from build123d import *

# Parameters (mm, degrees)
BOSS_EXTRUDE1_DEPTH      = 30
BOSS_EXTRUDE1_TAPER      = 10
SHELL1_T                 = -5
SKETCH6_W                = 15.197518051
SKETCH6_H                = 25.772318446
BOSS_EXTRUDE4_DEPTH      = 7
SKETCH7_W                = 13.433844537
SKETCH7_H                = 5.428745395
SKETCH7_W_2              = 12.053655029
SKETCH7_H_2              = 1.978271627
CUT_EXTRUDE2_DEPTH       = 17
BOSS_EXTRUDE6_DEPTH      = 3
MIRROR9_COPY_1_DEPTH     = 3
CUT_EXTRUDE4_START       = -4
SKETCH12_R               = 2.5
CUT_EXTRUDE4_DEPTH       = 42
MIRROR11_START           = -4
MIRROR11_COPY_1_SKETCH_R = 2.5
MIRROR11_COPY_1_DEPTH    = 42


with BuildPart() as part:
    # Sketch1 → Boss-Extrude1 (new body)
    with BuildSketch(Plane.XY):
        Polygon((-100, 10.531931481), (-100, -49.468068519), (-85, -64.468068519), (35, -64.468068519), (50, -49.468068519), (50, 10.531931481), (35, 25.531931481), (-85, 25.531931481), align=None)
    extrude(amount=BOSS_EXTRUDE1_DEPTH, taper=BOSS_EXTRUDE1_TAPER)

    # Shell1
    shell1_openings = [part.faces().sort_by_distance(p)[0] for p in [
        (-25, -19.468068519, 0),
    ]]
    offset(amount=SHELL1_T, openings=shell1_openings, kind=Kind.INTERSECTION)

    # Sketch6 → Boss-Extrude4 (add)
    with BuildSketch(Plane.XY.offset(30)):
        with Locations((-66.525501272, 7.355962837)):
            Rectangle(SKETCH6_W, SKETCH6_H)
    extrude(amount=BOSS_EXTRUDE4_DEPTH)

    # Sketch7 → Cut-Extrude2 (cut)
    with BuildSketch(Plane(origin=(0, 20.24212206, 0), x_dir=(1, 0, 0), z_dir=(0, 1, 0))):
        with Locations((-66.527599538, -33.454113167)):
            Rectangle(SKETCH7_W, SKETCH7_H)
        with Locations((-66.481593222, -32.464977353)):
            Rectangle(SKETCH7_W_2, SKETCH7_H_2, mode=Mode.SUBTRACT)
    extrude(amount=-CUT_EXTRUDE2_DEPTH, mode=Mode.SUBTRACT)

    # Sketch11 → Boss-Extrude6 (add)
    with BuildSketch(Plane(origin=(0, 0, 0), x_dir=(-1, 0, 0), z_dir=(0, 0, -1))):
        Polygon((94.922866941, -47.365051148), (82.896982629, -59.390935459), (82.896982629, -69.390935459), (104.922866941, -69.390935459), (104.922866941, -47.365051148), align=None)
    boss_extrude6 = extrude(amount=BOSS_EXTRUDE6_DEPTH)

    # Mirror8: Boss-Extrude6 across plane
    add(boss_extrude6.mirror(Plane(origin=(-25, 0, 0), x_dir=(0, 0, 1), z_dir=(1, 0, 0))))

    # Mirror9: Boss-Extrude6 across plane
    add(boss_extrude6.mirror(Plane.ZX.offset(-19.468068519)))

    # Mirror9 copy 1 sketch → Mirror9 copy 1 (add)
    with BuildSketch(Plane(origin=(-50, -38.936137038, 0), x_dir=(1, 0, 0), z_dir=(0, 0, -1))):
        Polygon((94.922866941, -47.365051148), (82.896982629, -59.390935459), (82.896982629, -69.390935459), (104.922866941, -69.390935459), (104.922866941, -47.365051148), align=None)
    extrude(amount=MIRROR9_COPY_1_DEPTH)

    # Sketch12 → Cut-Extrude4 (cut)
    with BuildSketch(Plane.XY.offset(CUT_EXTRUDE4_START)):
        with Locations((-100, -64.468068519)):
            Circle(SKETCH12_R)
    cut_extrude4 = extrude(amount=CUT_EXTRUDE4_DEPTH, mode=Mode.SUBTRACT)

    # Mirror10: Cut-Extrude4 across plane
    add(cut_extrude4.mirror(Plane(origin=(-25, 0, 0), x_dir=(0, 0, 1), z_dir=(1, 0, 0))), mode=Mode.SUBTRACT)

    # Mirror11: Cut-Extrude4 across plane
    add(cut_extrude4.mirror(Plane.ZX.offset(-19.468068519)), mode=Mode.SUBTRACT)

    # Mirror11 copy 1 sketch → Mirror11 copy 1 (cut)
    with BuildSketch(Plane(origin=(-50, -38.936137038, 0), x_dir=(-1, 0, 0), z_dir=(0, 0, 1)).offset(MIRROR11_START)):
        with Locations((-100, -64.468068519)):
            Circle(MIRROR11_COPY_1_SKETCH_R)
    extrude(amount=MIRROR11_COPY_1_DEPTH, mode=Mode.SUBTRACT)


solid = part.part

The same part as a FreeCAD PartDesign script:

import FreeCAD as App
import Part
import Sketcher
Q = App.Units.Quantity


def faces_at(feature, points):
    """Names of the faces that lie closest to the given points."""
    faces = feature.Shape.Faces
    near = lambda p: min(range(len(faces)), key=lambda i: faces[i].distToShape(Part.Vertex(*p))[0])
    return sorted({f"Face{near(p) + 1}" for p in points})

doc = App.newDocument("Part")
body = doc.addObject("PartDesign::Body", "Body")

# Sketch on XY plane
sketch1 = body.newObject("Sketcher::SketchObject", "Sketch")
sketch1.AttachmentSupport = (doc.getObject("XY_Plane"), [""])
sketch1.MapMode = "FlatFace"
sketch1.addGeometry(Part.LineSegment(App.Vector(-100, 10.531931, 0), App.Vector(-100, -49.468069, 0)), False)
sketch1.addGeometry(Part.LineSegment(App.Vector(-100, -49.468069, 0), App.Vector(-85, -64.468069, 0)), False)
sketch1.addGeometry(Part.LineSegment(App.Vector(-85, -64.468069, 0), App.Vector(35, -64.468069, 0)), False)
sketch1.addGeometry(Part.LineSegment(App.Vector(35, -64.468069, 0), App.Vector(50, -49.468069, 0)), False)
sketch1.addGeometry(Part.LineSegment(App.Vector(50, -49.468069, 0), App.Vector(50, 10.531931, 0)), False)
sketch1.addGeometry(Part.LineSegment(App.Vector(50, 10.531931, 0), App.Vector(35, 25.531931, 0)), False)
sketch1.addGeometry(Part.LineSegment(App.Vector(35, 25.531931, 0), App.Vector(-85, 25.531931, 0)), False)
sketch1.addGeometry(Part.LineSegment(App.Vector(-85, 25.531931, 0), App.Vector(-100, 10.531931, 0)), False)
sketch1.addConstraint(Sketcher.Constraint("Coincident", 0, 2, 1, 1))
sketch1.addConstraint(Sketcher.Constraint("Coincident", 1, 2, 2, 1))
sketch1.addConstraint(Sketcher.Constraint("Coincident", 2, 2, 3, 1))
sketch1.addConstraint(Sketcher.Constraint("Coincident", 3, 2, 4, 1))
sketch1.addConstraint(Sketcher.Constraint("Coincident", 4, 2, 5, 1))
sketch1.addConstraint(Sketcher.Constraint("Coincident", 5, 2, 6, 1))
sketch1.addConstraint(Sketcher.Constraint("Coincident", 6, 2, 7, 1))
sketch1.addConstraint(Sketcher.Constraint("Coincident", 7, 2, 0, 1))
sketch1.addConstraint(Sketcher.Constraint("Vertical", 0))
sketch1.addConstraint(Sketcher.Constraint("Horizontal", 2))
sketch1.addConstraint(Sketcher.Constraint("Vertical", 4))
sketch1.addConstraint(Sketcher.Constraint("Horizontal", 6))
sketch1.addConstraint(Sketcher.Constraint("Perpendicular", 1, 3))
sketch1.addConstraint(Sketcher.Constraint("Perpendicular", 3, 5))
sketch1.addConstraint(Sketcher.Constraint("Perpendicular", 5, 7))
sketch1.addConstraint(Sketcher.Constraint("Horizontal", 0, 2, 3, 2))
sketch1.addConstraint(Sketcher.Constraint("Horizontal", 4, 2, 7, 2))
sketch1.addConstraint(Sketcher.Constraint("Vertical", 2, 2, 5, 2))
sketch1.addConstraint(Sketcher.Constraint("Vertical", 1, 2, 6, 2))
sketch1.addConstraint(Sketcher.Constraint("DistanceX", 2, 1, 2, 2, Q("120 mm")))
sketch1.addConstraint(Sketcher.Constraint("DistanceY", 0, 2, 0, 1, Q("60 mm")))
sketch1.addConstraint(Sketcher.Constraint("DistanceX", 0, 2, -1, 1, Q("100 mm")))
sketch1.addConstraint(Sketcher.Constraint("DistanceX", 1, 2, -1, 1, Q("85 mm")))
sketch1.addConstraint(Sketcher.Constraint("DistanceY", 0, 2, -1, 1, Q("49.468069 mm")))
pad1 = body.newObject("PartDesign::Pad", "Pad")
pad1.Profile = sketch1
pad1.Length = 30
pad1.TaperAngle = -10
doc.recompute()

thickness = body.newObject("PartDesign::Thickness", "Thickness")
thickness.Base = (pad1, faces_at(pad1, [(-25, -19.468, 0)]))
thickness.Value = 5
thickness.Reversed = True
thickness.Join = "Intersection"

# Sketch on XY plane
sketch2 = body.newObject("Sketcher::SketchObject", "Sketch001")
sketch2.AttachmentSupport = (doc.getObject("XY_Plane"), [""])
sketch2.MapMode = "FlatFace"
sketch2.AttachmentOffset = App.Placement(App.Vector(0, 0, 30), App.Rotation())
sketch2.addGeometry(Part.LineSegment(App.Vector(-74.12426, 20.242122, 0), App.Vector(-74.12426, -5.530196, 0)), False)
sketch2.addGeometry(Part.LineSegment(App.Vector(-74.12426, -5.530196, 0), App.Vector(-58.926742, -5.530196, 0)), False)
sketch2.addGeometry(Part.LineSegment(App.Vector(-58.926742, -5.530196, 0), App.Vector(-58.926742, 20.242122, 0)), False)
sketch2.addGeometry(Part.LineSegment(App.Vector(-58.926742, 20.242122, 0), App.Vector(-74.12426, 20.242122, 0)), False)
sketch2.addConstraint(Sketcher.Constraint("Coincident", 0, 2, 1, 1))
sketch2.addConstraint(Sketcher.Constraint("Coincident", 1, 2, 2, 1))
sketch2.addConstraint(Sketcher.Constraint("Coincident", 2, 2, 3, 1))
sketch2.addConstraint(Sketcher.Constraint("Coincident", 3, 2, 0, 1))
sketch2.addConstraint(Sketcher.Constraint("Vertical", 0))
sketch2.addConstraint(Sketcher.Constraint("Horizontal", 1))
sketch2.addConstraint(Sketcher.Constraint("Vertical", 2))
sketch2.addConstraint(Sketcher.Constraint("Horizontal", 3))
sketch2.addConstraint(Sketcher.Constraint("DistanceX", 1, 1, 1, 2, Q("15.197518 mm")))
sketch2.addConstraint(Sketcher.Constraint("DistanceY", 0, 2, 0, 1, Q("25.772318 mm")))
sketch2.addConstraint(Sketcher.Constraint("DistanceX", 0, 2, -1, 1, Q("74.12426 mm")))
sketch2.addConstraint(Sketcher.Constraint("DistanceY", 0, 2, -1, 1, Q("5.530196 mm")))
pad2 = body.newObject("PartDesign::Pad", "Pad001")
pad2.Profile = sketch2
pad2.Length = 7

# Sketch on XZ plane
sketch3 = body.newObject("Sketcher::SketchObject", "Sketch002")
sketch3.AttachmentSupport = (doc.getObject("XZ_Plane"), [""])
sketch3.MapMode = "FlatFace"
sketch3.AttachmentOffset = App.Placement(App.Vector(0, 0, -20.242122), App.Rotation())
sketch3.addGeometry(Part.LineSegment(App.Vector(-73.244522, 30.73974, 0), App.Vector(-73.244522, 36.168486, 0)), False)
sketch3.addGeometry(Part.LineSegment(App.Vector(-73.244522, 36.168486, 0), App.Vector(-59.810677, 36.168486, 0)), False)
sketch3.addGeometry(Part.LineSegment(App.Vector(-59.810677, 36.168486, 0), App.Vector(-59.810677, 30.73974, 0)), False)
sketch3.addGeometry(Part.LineSegment(App.Vector(-59.810677, 30.73974, 0), App.Vector(-73.244522, 30.73974, 0)), False)
sketch3.addGeometry(Part.LineSegment(App.Vector(-60.454766, 33.454113, 0), App.Vector(-72.508421, 33.454113, 0)), False)
sketch3.addGeometry(Part.LineSegment(App.Vector(-72.508421, 33.454113, 0), App.Vector(-72.508421, 31.475842, 0)), False)
sketch3.addGeometry(Part.LineSegment(App.Vector(-72.508421, 31.475842, 0), App.Vector(-60.454766, 31.475842, 0)), False)
sketch3.addGeometry(Part.LineSegment(App.Vector(-60.454766, 31.475842, 0), App.Vector(-60.454766, 33.454113, 0)), False)
sketch3.addConstraint(Sketcher.Constraint("Coincident", 0, 2, 1, 1))
sketch3.addConstraint(Sketcher.Constraint("Coincident", 1, 2, 2, 1))
sketch3.addConstraint(Sketcher.Constraint("Coincident", 2, 2, 3, 1))
sketch3.addConstraint(Sketcher.Constraint("Coincident", 3, 2, 0, 1))
sketch3.addConstraint(Sketcher.Constraint("Coincident", 4, 2, 5, 1))
sketch3.addConstraint(Sketcher.Constraint("Coincident", 5, 2, 6, 1))
sketch3.addConstraint(Sketcher.Constraint("Coincident", 6, 2, 7, 1))
sketch3.addConstraint(Sketcher.Constraint("Coincident", 7, 2, 4, 1))
sketch3.addConstraint(Sketcher.Constraint("Vertical", 0))
sketch3.addConstraint(Sketcher.Constraint("Horizontal", 1))
sketch3.addConstraint(Sketcher.Constraint("Vertical", 2))
sketch3.addConstraint(Sketcher.Constraint("Horizontal", 3))
sketch3.addConstraint(Sketcher.Constraint("Horizontal", 4))
sketch3.addConstraint(Sketcher.Constraint("Vertical", 5))
sketch3.addConstraint(Sketcher.Constraint("Horizontal", 6))
sketch3.addConstraint(Sketcher.Constraint("Vertical", 7))
sketch3.addConstraint(Sketcher.Constraint("DistanceY", 5, 2, 5, 1, Q("1.978272 mm")))
sketch3.addConstraint(Sketcher.Constraint("DistanceX", 0, 2, 4, 2, Q("0.736101 mm")))
sketch3.addConstraint(Sketcher.Constraint("DistanceY", 3, 2, 5, 2, Q("0.736101 mm")))
sketch3.addConstraint(Sketcher.Constraint("DistanceX", 1, 1, 1, 2, Q("13.433845 mm")))
sketch3.addConstraint(Sketcher.Constraint("DistanceX", 4, 2, 4, 1, Q("12.053655 mm")))
sketch3.addConstraint(Sketcher.Constraint("DistanceY", 0, 1, 0, 2, Q("5.428745 mm")))
sketch3.addConstraint(Sketcher.Constraint("DistanceX", 0, 2, -1, 1, Q("73.244522 mm")))
sketch3.addConstraint(Sketcher.Constraint("DistanceY", -1, 1, 2, 2, Q("30.73974 mm")))
pocket1 = body.newObject("PartDesign::Pocket", "Pocket")
pocket1.Profile = sketch3
pocket1.Length = 17
pocket1.Reversed = True

# Sketch on XY plane
sketch4 = body.newObject("Sketcher::SketchObject", "Sketch003")
sketch4.AttachmentSupport = (doc.getObject("XY_Plane"), [""])
sketch4.MapMode = "FlatFace"
sketch4.addGeometry(Part.LineSegment(App.Vector(-94.922867, -47.365051, 0), App.Vector(-82.896983, -59.390935, 0)), False)
sketch4.addGeometry(Part.LineSegment(App.Vector(-82.896983, -59.390935, 0), App.Vector(-82.896983, -69.390935, 0)), False)
sketch4.addGeometry(Part.LineSegment(App.Vector(-82.896983, -69.390935, 0), App.Vector(-104.922867, -69.390935, 0)), False)
sketch4.addGeometry(Part.LineSegment(App.Vector(-104.922867, -69.390935, 0), App.Vector(-104.922867, -47.365051, 0)), False)
sketch4.addGeometry(Part.LineSegment(App.Vector(-104.922867, -47.365051, 0), App.Vector(-94.922867, -47.365051, 0)), False)
sketch4.addConstraint(Sketcher.Constraint("Coincident", 0, 2, 1, 1))
sketch4.addConstraint(Sketcher.Constraint("Coincident", 1, 2, 2, 1))
sketch4.addConstraint(Sketcher.Constraint("Coincident", 2, 2, 3, 1))
sketch4.addConstraint(Sketcher.Constraint("Coincident", 3, 2, 4, 1))
sketch4.addConstraint(Sketcher.Constraint("Coincident", 4, 2, 0, 1))
sketch4.addConstraint(Sketcher.Constraint("Vertical", 1))
sketch4.addConstraint(Sketcher.Constraint("Horizontal", 2))
sketch4.addConstraint(Sketcher.Constraint("Vertical", 3))
sketch4.addConstraint(Sketcher.Constraint("Horizontal", 4))
sketch4.addConstraint(Sketcher.Constraint("Equal", 4, 1))
sketch4.addConstraint(Sketcher.Constraint("Equal", 2, 3))
sketch4.addConstraint(Sketcher.Constraint("DistanceX", 4, 1, 4, 2, Q("10 mm")))
sketch4.addConstraint(Sketcher.Constraint("Distance", 0, Q("17.007169 mm")))
sketch4.addConstraint(Sketcher.Constraint("DistanceY", 3, 2, -1, 1, Q("47.365051 mm")))
sketch4.addConstraint(Sketcher.Constraint("DistanceX", 0, 2, -1, 1, Q("82.896983 mm")))
pad3 = body.newObject("PartDesign::Pad", "Pad002")
pad3.Profile = sketch4
pad3.Length = 3
pad3.Reversed = True
doc.recompute()

datumplane = body.newObject("PartDesign::Plane", "DatumPlane")
datumplane.AttachmentSupport = (doc.getObject("YZ_Plane"), [""])
datumplane.MapMode = "FlatFace"
datumplane.AttachmentOffset = App.Placement(App.Vector(0, 0, -25), App.Rotation())
mirrored = body.newObject("PartDesign::Mirrored", "Mirrored")
mirrored.Originals = [pad3]
mirrored.MirrorPlane = (datumplane, [""])
body.Tip = mirrored
doc.recompute()

datumplane2 = body.newObject("PartDesign::Plane", "DatumPlane001")
datumplane2.AttachmentSupport = (doc.getObject("XZ_Plane"), [""])
datumplane2.MapMode = "FlatFace"
datumplane2.AttachmentOffset = App.Placement(App.Vector(0, 0, 19.468069), App.Rotation())
mirrored2 = body.newObject("PartDesign::Mirrored", "Mirrored001")
mirrored2.Originals = [pad3]
mirrored2.MirrorPlane = (datumplane2, [""])
body.Tip = mirrored2

# Sketch on XY plane
sketch5 = body.newObject("Sketcher::SketchObject", "Sketch004")
sketch5.AttachmentSupport = (doc.getObject("XY_Plane"), [""])
sketch5.MapMode = "FlatFace"
sketch5.addGeometry(Part.LineSegment(App.Vector(44.922867, 8.428914, 0), App.Vector(32.896983, 20.454798, 0)), False)
sketch5.addGeometry(Part.LineSegment(App.Vector(32.896983, 20.454798, 0), App.Vector(32.896983, 30.454798, 0)), False)
sketch5.addGeometry(Part.LineSegment(App.Vector(32.896983, 30.454798, 0), App.Vector(54.922867, 30.454798, 0)), False)
sketch5.addGeometry(Part.LineSegment(App.Vector(54.922867, 30.454798, 0), App.Vector(54.922867, 8.428914, 0)), False)
sketch5.addGeometry(Part.LineSegment(App.Vector(54.922867, 8.428914, 0), App.Vector(44.922867, 8.428914, 0)), False)
sketch5.addConstraint(Sketcher.Constraint("Coincident", 0, 2, 1, 1))
sketch5.addConstraint(Sketcher.Constraint("Coincident", 1, 2, 2, 1))
sketch5.addConstraint(Sketcher.Constraint("Coincident", 2, 2, 3, 1))
sketch5.addConstraint(Sketcher.Constraint("Coincident", 3, 2, 4, 1))
sketch5.addConstraint(Sketcher.Constraint("Coincident", 4, 2, 0, 1))
sketch5.addConstraint(Sketcher.Constraint("Vertical", 1))
sketch5.addConstraint(Sketcher.Constraint("Horizontal", 2))
sketch5.addConstraint(Sketcher.Constraint("Vertical", 3))
sketch5.addConstraint(Sketcher.Constraint("Horizontal", 4))
sketch5.addConstraint(Sketcher.Constraint("Equal", 4, 1))
sketch5.addConstraint(Sketcher.Constraint("Equal", 2, 3))
sketch5.addConstraint(Sketcher.Constraint("DistanceX", 4, 2, 4, 1, Q("10 mm")))
sketch5.addConstraint(Sketcher.Constraint("DistanceY", -1, 1, 0, 2, Q("20.454798 mm")))
sketch5.addConstraint(Sketcher.Constraint("Distance", 0, Q("17.007169 mm")))
sketch5.addConstraint(Sketcher.Constraint("DistanceX", -1, 1, 0, 2, Q("32.896983 mm")))
pad4 = body.newObject("PartDesign::Pad", "Pad003")
pad4.Profile = sketch5
pad4.Length = 3
pad4.Reversed = True

# Sketch on XY plane
sketch6 = body.newObject("Sketcher::SketchObject", "Sketch005")
sketch6.AttachmentSupport = (doc.getObject("XY_Plane"), [""])
sketch6.MapMode = "FlatFace"
sketch6.AttachmentOffset = App.Placement(App.Vector(0, 0, -4), App.Rotation())
sketch6.addGeometry(Part.Circle(App.Vector(-100, -64.468069, 0), App.Vector(0, 0, 1), 2.5), False)
sketch6.addConstraint(Sketcher.Constraint("Diameter", 0, Q("5 mm")))
sketch6.addConstraint(Sketcher.Constraint("DistanceX", 0, 3, -1, 1, Q("100 mm")))
sketch6.addConstraint(Sketcher.Constraint("DistanceY", 0, 3, -1, 1, Q("64.468069 mm")))
pocket2 = body.newObject("PartDesign::Pocket", "Pocket001")
pocket2.Profile = sketch6
pocket2.Length = 42
pocket2.Reversed = True
doc.recompute()

datumplane3 = body.newObject("PartDesign::Plane", "DatumPlane002")
datumplane3.AttachmentSupport = (doc.getObject("YZ_Plane"), [""])
datumplane3.MapMode = "FlatFace"
datumplane3.AttachmentOffset = App.Placement(App.Vector(0, 0, -25), App.Rotation())
mirrored3 = body.newObject("PartDesign::Mirrored", "Mirrored002")
mirrored3.Originals = [pocket2]
mirrored3.MirrorPlane = (datumplane3, [""])
body.Tip = mirrored3
doc.recompute()

datumplane4 = body.newObject("PartDesign::Plane", "DatumPlane003")
datumplane4.AttachmentSupport = (doc.getObject("XZ_Plane"), [""])
datumplane4.MapMode = "FlatFace"
datumplane4.AttachmentOffset = App.Placement(App.Vector(0, 0, 19.468069), App.Rotation())
mirrored4 = body.newObject("PartDesign::Mirrored", "Mirrored003")
mirrored4.Originals = [pocket2]
mirrored4.MirrorPlane = (datumplane4, [""])
body.Tip = mirrored4

# Sketch on XY plane
sketch7 = body.newObject("Sketcher::SketchObject", "Sketch006")
sketch7.AttachmentSupport = (doc.getObject("XY_Plane"), [""])
sketch7.MapMode = "FlatFace"
sketch7.AttachmentOffset = App.Placement(App.Vector(0, 0, -4), App.Rotation())
sketch7.addGeometry(Part.Circle(App.Vector(50, 25.531931, 0), App.Vector(0, 0, 1), 2.5), False)
sketch7.addConstraint(Sketcher.Constraint("Diameter", 0, Q("5 mm")))
sketch7.addConstraint(Sketcher.Constraint("DistanceX", -1, 1, 0, 3, Q("50 mm")))
sketch7.addConstraint(Sketcher.Constraint("DistanceY", -1, 1, 0, 3, Q("25.531931 mm")))
pocket3 = body.newObject("PartDesign::Pocket", "Pocket002")
pocket3.Profile = sketch7
pocket3.Length = 42
pocket3.Reversed = True

doc.recompute()
